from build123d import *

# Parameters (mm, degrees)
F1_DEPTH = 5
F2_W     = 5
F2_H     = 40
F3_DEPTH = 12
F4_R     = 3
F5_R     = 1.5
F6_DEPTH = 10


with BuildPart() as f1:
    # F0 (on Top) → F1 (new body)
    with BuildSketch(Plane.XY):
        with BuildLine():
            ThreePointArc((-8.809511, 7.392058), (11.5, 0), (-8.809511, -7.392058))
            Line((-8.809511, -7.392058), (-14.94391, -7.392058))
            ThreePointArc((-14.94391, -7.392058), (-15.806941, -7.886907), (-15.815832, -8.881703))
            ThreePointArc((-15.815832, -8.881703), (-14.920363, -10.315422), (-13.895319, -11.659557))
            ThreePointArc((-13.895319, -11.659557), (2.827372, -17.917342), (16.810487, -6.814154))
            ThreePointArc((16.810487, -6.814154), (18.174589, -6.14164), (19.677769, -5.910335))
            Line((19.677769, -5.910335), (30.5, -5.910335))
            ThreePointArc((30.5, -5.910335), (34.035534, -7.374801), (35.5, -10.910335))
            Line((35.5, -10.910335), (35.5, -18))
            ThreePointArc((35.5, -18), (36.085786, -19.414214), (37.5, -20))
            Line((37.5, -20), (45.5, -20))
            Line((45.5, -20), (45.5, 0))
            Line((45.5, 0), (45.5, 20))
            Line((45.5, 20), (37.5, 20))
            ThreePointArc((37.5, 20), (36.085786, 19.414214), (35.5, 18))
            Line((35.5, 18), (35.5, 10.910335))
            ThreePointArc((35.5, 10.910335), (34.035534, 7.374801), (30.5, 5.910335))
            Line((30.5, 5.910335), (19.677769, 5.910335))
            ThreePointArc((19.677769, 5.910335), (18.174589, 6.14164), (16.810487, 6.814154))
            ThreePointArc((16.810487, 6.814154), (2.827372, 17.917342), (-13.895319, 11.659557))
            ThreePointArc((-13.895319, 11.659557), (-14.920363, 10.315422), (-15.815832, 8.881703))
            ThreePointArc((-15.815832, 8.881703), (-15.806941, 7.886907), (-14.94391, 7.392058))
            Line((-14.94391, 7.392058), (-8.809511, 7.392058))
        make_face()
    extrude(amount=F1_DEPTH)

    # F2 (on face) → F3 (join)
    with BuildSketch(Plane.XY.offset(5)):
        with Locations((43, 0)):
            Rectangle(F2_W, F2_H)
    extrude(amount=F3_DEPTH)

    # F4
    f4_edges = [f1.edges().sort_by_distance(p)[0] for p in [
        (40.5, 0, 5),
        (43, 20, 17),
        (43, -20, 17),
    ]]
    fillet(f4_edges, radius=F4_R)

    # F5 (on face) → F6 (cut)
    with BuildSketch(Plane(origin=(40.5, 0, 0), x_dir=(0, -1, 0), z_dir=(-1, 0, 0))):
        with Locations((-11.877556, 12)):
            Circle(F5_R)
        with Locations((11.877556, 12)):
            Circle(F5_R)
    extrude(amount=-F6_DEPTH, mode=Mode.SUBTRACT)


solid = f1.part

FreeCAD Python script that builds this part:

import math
import FreeCAD as App
import Part
import Sketcher
from FreeCAD import Vector


def edges_at(feature, points):
    """Names of the edges that pass closest to the given points."""
    edges = feature.Shape.Edges
    near = lambda p: min(range(len(edges)), key=lambda i: edges[i].distToShape(Part.Vertex(*p))[0])
    return sorted({f"Edge{near(p) + 1}" for p in points})

doc = App.newDocument("Part")
body = doc.addObject("PartDesign::Body", "Body")

# Sketch on XY plane
sketch1 = body.newObject("Sketcher::SketchObject", "Sketch")
sketch1.AttachmentSupport = (doc.getObject("XY_Plane"), [""])
sketch1.MapMode = "FlatFace"
sketch1.addGeometry(Part.ArcOfCircle(Part.Circle(Vector(0, 0, 0), Vector(0, 0, 1), 11.5), math.radians(-140), math.radians(140)), False)
sketch1.addGeometry(Part.LineSegment(Vector(-8.8, -7.4, 0), Vector(-14.9, -7.4, 0)), False)
sketch1.addGeometry(Part.ArcOfCircle(Part.Circle(Vector(-14.9, -8.4, 0), Vector(0, 0, 1), 1), math.radians(90), math.radians(209)), False)
sketch1.addGeometry(Part.ArcOfCircle(Part.Circle(Vector(0, 0, 0), Vector(0, 0, 1), 18.1), math.radians(-150.68), math.radians(-140)), False)
sketch1.addGeometry(Part.ArcOfCircle(Part.Circle(Vector(0, 0, 0), Vector(0, 0, 1), 18.1), math.radians(-140), math.radians(-22)), False)
sketch1.addGeometry(Part.ArcOfCircle(Part.Circle(Vector(19.7, -10.9, 0), Vector(0, 0, 1), 5), math.radians(90), math.radians(125)), False)
sketch1.addGeometry(Part.LineSegment(Vector(19.7, -5.9, 0), Vector(30.5, -5.9, 0)), False)
sketch1.addGeometry(Part.ArcOfCircle(Part.Circle(Vector(30.5, -10.9, 0), Vector(0, 0, 1), 5), math.radians(0), math.radians(90)), False)
sketch1.addGeometry(Part.LineSegment(Vector(35.5, -10.9, 0), Vector(35.5, -18, 0)), False)
sketch1.addGeometry(Part.ArcOfCircle(Part.Circle(Vector(37.5, -18, 0), Vector(0, 0, 1), 2), math.radians(180), math.radians(270)), False)
sketch1.addGeometry(Part.LineSegment(Vector(37.5, -20, 0), Vector(45.5, -20, 0)), False)
sketch1.addGeometry(Part.LineSegment(Vector(45.5, -20, 0), Vector(45.5, 20, 0)), False)
sketch1.addGeometry(Part.LineSegment(Vector(45.5, 20, 0), Vector(37.5, 20, 0)), False)
sketch1.addGeometry(Part.ArcOfCircle(Part.Circle(Vector(37.5, 18, 0), Vector(0, 0, 1), 2), math.radians(90), math.radians(180)), False)
sketch1.addGeometry(Part.LineSegment(Vector(35.5, 18, 0), Vector(35.5, 10.9, 0)), False)
sketch1.addGeometry(Part.ArcOfCircle(Part.Circle(Vector(30.5, 10.9, 0), Vector(0, 0, 1), 5), math.radians(-90), math.radians(0)), False)
sketch1.addGeometry(Part.LineSegment(Vector(30.5, 5.9, 0), Vector(19.7, 5.9, 0)), False)
sketch1.addGeometry(Part.ArcOfCircle(Part.Circle(Vector(19.7, 10.9, 0), Vector(0, 0, 1), 5), math.radians(-125), math.radians(-90)), False)
sketch1.addGeometry(Part.ArcOfCircle(Part.Circle(Vector(0, 0, 0), Vector(0, 0, 1), 18.1), math.radians(22), math.radians(140)), False)
sketch1.addGeometry(Part.ArcOfCircle(Part.Circle(Vector(0, 0, 0), Vector(0, 0, 1), 18.1), math.radians(140), math.radians(150.68)), False)
sketch1.addGeometry(Part.ArcOfCircle(Part.Circle(Vector(-14.9, 8.4, 0), Vector(0, 0, 1), 1), math.radians(151), math.radians(270)), False)
sketch1.addGeometry(Part.LineSegment(Vector(-14.9, 7.4, 0), Vector(-8.8, 7.4, 0)), False)
sketch1.addConstraint(Sketcher.Constraint("Coincident", 0, 1, 1, 1))
sketch1.addConstraint(Sketcher.Constraint("Tangent", 1, 2, 2, 1))
sketch1.addConstraint(Sketcher.Constraint("Tangent", 2, 2, 3, 1))
sketch1.addConstraint(Sketcher.Constraint("Tangent", 3, 2, 4, 1))
sketch1.addConstraint(Sketcher.Constraint("Coincident", 4, 2, 5, 2))
sketch1.addConstraint(Sketcher.Constraint("Tangent", 5, 1, 6, 1))
sketch1.addConstraint(Sketcher.Constraint("Tangent", 6, 2, 7, 2))
sketch1.addConstraint(Sketcher.Constraint("Tangent", 7, 1, 8, 1))
sketch1.addConstraint(Sketcher.Constraint("Tangent", 8, 2, 9, 1))
sketch1.addConstraint(Sketcher.Constraint("Tangent", 9, 2, 10, 1))
sketch1.addConstraint(Sketcher.Constraint("Coincident", 10, 2, 11, 1))
sketch1.addConstraint(Sketcher.Constraint("Coincident", 11, 2, 12, 1))
sketch1.addConstraint(Sketcher.Constraint("Tangent", 12, 2, 13, 1))
sketch1.addConstraint(Sketcher.Constraint("Tangent", 13, 2, 14, 1))
sketch1.addConstraint(Sketcher.Constraint("Tangent", 14, 2, 15, 2))
sketch1.addConstraint(Sketcher.Constraint("Tangent", 15, 1, 16, 1))
sketch1.addConstraint(Sketcher.Constraint("Tangent", 16, 2, 17, 2))
sketch1.addConstraint(Sketcher.Constraint("Coincident", 17, 1, 18, 1))
sketch1.addConstraint(Sketcher.Constraint("Tangent", 18, 2, 19, 1))
sketch1.addConstraint(Sketcher.Constraint("Tangent", 19, 2, 20, 1))
sketch1.addConstraint(Sketcher.Constraint("Tangent", 20, 2, 21, 1))
sketch1.addConstraint(Sketcher.Constraint("Coincident", 21, 2, 0, 2))
sketch1.addConstraint(Sketcher.Constraint("Horizontal", 1))
sketch1.addConstraint(Sketcher.Constraint("Horizontal", 6))
sketch1.addConstraint(Sketcher.Constraint("Vertical", 8))
sketch1.addConstraint(Sketcher.Constraint("Horizontal", 10))
sketch1.addConstraint(Sketcher.Constraint("Vertical", 11))
sketch1.addConstraint(Sketcher.Constraint("Horizontal", 12))
sketch1.addConstraint(Sketcher.Constraint("Vertical", 14))
sketch1.addConstraint(Sketcher.Constraint("Horizontal", 16))
sketch1.addConstraint(Sketcher.Constraint("Horizontal", 21))
sketch1.addConstraint(Sketcher.Constraint("Coincident", 0, 3, -1, 1))
sketch1.addConstraint(Sketcher.Constraint("Coincident", 4, 3, -1, 1))
sketch1.addConstraint(Sketcher.Constraint("Coincident", 18, 3, -1, 1))
sketch1.addConstraint(Sketcher.Constraint("Equal", 5, 7))
sketch1.addConstraint(Sketcher.Constraint("Equal", 9, 13))
sketch1.addConstraint(Sketcher.Constraint("Equal", 7, 15))
sketch1.addConstraint(Sketcher.Constraint("Equal", 15, 17))
sketch1.addConstraint(Sketcher.Constraint("Equal", 4, 18))
sketch1.addConstraint(Sketcher.Constraint("Equal", 3, 19))
sketch1.addConstraint(Sketcher.Constraint("Equal", 2, 20))
sketch1.addConstraint(Sketcher.Constraint("Symmetric", 9, 3, 13, 3, -1))
sketch1.addConstraint(Sketcher.Constraint("Symmetric", 5, 3, 17, 3, -1))
sketch1.addConstraint(Sketcher.Constraint("Vertical", 2, 3, 20, 3))
sketch1.addConstraint(Sketcher.Constraint("Vertical", 3, 2, 18, 2))
sketch1.addConstraint(Sketcher.Constraint("Radius", 2, 1.0))
sketch1.addConstraint(Sketcher.Constraint("Radius", 5, 5.000001))
sketch1.addConstraint(Sketcher.Constraint("Radius", 9, 1.999999))
sketch1.addConstraint(Sketcher.Constraint("Radius", 0, 11.5))
sketch1.addConstraint(Sketcher.Constraint("DistanceX", 10, 1, 10, 2, 8.0))
sketch1.addConstraint(Sketcher.Constraint("DistanceY", 11, 1, 11, 2, 40.0))
sketch1.addConstraint(Sketcher.Constraint("DistanceX", -1, 1, 7, 3, 30.5))
sketch1.addConstraint(Sketcher.Constraint("Radius", 4, 18.13905))
sketch1.addConstraint(Sketcher.Constraint("DistanceX", 1, 2, 1, 1, 6.134399))
sketch1.addConstraint(Sketcher.Constraint("Radius", 3, 18.139125))
sketch1.addConstraint(Sketcher.Constraint("DistanceX", 6, 1, 6, 2, 10.822231))
sketch1.addConstraint(Sketcher.Constraint("DistanceY", 3, 2, 2, 3, 3.267499))
sketch1.addConstraint(Sketcher.Constraint("DistanceY", 4, 2, 3, 3, 6.8142))
pad1 = body.newObject("PartDesign::Pad", "Pad")
pad1.Profile = sketch1
pad1.Length = 5

# Sketch on XY plane
sketch2 = body.newObject("Sketcher::SketchObject", "Sketch001")
sketch2.AttachmentSupport = (doc.getObject("XY_Plane"), [""])
sketch2.MapMode = "FlatFace"
sketch2.AttachmentOffset = App.Placement(Vector(0, 0, 5), App.Rotation())
sketch2.addGeometry(Part.LineSegment(Vector(40, 20, 0), Vector(40, -20, 0)), False)
sketch2.addGeometry(Part.LineSegment(Vector(40, -20, 0), Vector(46, -20, 0)), False)
sketch2.addGeometry(Part.LineSegment(Vector(46, -20, 0), Vector(46, 20, 0)), False)
sketch2.addGeometry(Part.LineSegment(Vector(46, 20, 0), Vector(40, 20, 0)), False)
sketch2.addConstraint(Sketcher.Constraint("Coincident", 0, 2, 1, 1))
sketch2.addConstraint(Sketcher.Constraint("Coincident", 1, 2, 2, 1))
sketch2.addConstraint(Sketcher.Constraint("Coincident", 2, 2, 3, 1))
sketch2.addConstraint(Sketcher.Constraint("Coincident", 3, 2, 0, 1))
sketch2.addConstraint(Sketcher.Constraint("Vertical", 0))
sketch2.addConstraint(Sketcher.Constraint("Horizontal", 1))
sketch2.addConstraint(Sketcher.Constraint("Vertical", 2))
sketch2.addConstraint(Sketcher.Constraint("Horizontal", 3))
sketch2.addConstraint(Sketcher.Constraint("DistanceX", 1, 1, 1, 2, 5.0))
sketch2.addConstraint(Sketcher.Constraint("DistanceY", 0, 2, 0, 1, 40.0))
sketch2.addConstraint(Sketcher.Constraint("DistanceY", 0, 2, -1, 1, 20.0))
sketch2.addConstraint(Sketcher.Constraint("DistanceX", -1, 1, 0, 2, 40.5))
pad2 = body.newObject("PartDesign::Pad", "Pad001")
pad2.Profile = sketch2
pad2.Length = 12
doc.recompute()

fillet = body.newObject("PartDesign::Fillet", "Fillet")
fillet.Base = (pad2, edges_at(pad2, [(40.5, 0, 5), (43, 20, 17), (43, -20, 17)]))
fillet.Radius = 3

# Sketch on YZ plane
sketch3 = body.newObject("Sketcher::SketchObject", "Sketch002")
sketch3.AttachmentSupport = (doc.getObject("YZ_Plane"), [""])
sketch3.MapMode = "FlatFace"
sketch3.AttachmentOffset = App.Placement(Vector(0, 0, 40.5), App.Rotation())
sketch3.addGeometry(Part.Circle(Vector(11.9, 12, 0), Vector(0, 0, 1), 1.5), False)
sketch3.addGeometry(Part.Circle(Vector(-11.9, 12, 0), Vector(0, 0, 1), 1.5), False)
sketch3.addConstraint(Sketcher.Constraint("Equal", 0, 1))
sketch3.addConstraint(Sketcher.Constraint("Symmetric", 0, 3, 1, 3, -2))
sketch3.addConstraint(Sketcher.Constraint("Diameter", 0, 3.0))
sketch3.addConstraint(Sketcher.Constraint("DistanceY", -1, 1, 0, 3, 12.0))
sketch3.addConstraint(Sketcher.Constraint("DistanceX", -1, 1, 0, 3, 11.877556))
pocket1 = body.newObject("PartDesign::Pocket", "Pocket")
pocket1.Profile = sketch3
pocket1.Length = 10
pocket1.Reversed = True

doc.recompute()
